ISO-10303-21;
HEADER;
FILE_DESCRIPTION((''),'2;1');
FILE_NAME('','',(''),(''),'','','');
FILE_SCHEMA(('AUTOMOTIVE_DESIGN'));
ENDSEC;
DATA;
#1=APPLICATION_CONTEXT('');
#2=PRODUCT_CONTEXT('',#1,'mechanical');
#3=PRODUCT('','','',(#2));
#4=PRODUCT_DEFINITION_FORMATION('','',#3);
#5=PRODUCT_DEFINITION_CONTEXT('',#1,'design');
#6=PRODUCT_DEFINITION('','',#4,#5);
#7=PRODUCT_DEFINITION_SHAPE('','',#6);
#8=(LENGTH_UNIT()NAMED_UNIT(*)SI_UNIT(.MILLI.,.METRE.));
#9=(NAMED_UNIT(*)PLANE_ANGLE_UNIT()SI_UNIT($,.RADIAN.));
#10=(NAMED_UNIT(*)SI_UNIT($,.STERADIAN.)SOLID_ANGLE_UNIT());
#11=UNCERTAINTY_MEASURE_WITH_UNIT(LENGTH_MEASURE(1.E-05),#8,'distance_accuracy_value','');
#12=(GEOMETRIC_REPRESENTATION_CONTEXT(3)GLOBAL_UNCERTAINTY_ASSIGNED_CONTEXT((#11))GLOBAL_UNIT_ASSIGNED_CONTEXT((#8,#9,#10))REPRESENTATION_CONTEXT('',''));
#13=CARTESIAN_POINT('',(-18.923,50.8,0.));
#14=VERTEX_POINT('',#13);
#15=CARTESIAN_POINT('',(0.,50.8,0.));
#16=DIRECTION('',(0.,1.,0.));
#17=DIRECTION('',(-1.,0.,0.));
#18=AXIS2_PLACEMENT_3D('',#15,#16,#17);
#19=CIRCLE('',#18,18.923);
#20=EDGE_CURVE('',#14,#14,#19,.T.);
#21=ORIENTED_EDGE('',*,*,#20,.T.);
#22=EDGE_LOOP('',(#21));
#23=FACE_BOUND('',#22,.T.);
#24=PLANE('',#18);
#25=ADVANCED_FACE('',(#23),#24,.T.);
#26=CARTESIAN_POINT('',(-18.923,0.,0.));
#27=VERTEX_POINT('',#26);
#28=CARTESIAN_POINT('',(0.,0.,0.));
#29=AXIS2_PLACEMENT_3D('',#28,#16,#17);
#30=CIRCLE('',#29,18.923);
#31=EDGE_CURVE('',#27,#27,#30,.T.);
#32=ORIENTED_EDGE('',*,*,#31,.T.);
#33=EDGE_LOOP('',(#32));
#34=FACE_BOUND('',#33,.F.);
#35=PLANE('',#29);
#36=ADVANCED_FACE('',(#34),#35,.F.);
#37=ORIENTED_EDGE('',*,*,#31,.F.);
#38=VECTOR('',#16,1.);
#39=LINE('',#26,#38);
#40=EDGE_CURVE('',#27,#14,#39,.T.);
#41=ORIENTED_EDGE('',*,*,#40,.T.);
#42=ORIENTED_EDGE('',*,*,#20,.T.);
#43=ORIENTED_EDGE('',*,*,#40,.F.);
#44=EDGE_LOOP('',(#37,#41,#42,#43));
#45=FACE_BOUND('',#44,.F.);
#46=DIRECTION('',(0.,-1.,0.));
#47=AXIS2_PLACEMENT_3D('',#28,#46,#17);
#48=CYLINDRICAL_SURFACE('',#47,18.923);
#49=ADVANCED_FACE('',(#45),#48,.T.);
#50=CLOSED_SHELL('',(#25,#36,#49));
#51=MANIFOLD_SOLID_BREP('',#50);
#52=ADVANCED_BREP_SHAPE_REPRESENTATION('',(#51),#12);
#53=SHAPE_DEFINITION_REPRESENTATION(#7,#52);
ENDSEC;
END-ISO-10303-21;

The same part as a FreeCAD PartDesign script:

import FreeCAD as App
import Part
import Sketcher
Q = App.Units.Quantity

doc = App.newDocument("Part")
body = doc.addObject("PartDesign::Body", "Body")

# Sketch on XZ plane
sketch1 = body.newObject("Sketcher::SketchObject", "Sketch")
sketch1.AttachmentSupport = (doc.getObject("XZ_Plane"), [""])
sketch1.MapMode = "FlatFace"
sketch1.addGeometry(Part.Circle(App.Vector(0, 0, 0), App.Vector(0, 0, 1), 19), False)
sketch1.addConstraint(Sketcher.Constraint("Coincident", 0, 3, -1, 1))
sketch1.addConstraint(Sketcher.Constraint("Diameter", 0, Q("1.49 in")))
pad1 = body.newObject("PartDesign::Pad", "Pad")
pad1.Profile = sketch1
pad1.Length = Q("2 in")
pad1.Reversed = True

doc.recompute()
